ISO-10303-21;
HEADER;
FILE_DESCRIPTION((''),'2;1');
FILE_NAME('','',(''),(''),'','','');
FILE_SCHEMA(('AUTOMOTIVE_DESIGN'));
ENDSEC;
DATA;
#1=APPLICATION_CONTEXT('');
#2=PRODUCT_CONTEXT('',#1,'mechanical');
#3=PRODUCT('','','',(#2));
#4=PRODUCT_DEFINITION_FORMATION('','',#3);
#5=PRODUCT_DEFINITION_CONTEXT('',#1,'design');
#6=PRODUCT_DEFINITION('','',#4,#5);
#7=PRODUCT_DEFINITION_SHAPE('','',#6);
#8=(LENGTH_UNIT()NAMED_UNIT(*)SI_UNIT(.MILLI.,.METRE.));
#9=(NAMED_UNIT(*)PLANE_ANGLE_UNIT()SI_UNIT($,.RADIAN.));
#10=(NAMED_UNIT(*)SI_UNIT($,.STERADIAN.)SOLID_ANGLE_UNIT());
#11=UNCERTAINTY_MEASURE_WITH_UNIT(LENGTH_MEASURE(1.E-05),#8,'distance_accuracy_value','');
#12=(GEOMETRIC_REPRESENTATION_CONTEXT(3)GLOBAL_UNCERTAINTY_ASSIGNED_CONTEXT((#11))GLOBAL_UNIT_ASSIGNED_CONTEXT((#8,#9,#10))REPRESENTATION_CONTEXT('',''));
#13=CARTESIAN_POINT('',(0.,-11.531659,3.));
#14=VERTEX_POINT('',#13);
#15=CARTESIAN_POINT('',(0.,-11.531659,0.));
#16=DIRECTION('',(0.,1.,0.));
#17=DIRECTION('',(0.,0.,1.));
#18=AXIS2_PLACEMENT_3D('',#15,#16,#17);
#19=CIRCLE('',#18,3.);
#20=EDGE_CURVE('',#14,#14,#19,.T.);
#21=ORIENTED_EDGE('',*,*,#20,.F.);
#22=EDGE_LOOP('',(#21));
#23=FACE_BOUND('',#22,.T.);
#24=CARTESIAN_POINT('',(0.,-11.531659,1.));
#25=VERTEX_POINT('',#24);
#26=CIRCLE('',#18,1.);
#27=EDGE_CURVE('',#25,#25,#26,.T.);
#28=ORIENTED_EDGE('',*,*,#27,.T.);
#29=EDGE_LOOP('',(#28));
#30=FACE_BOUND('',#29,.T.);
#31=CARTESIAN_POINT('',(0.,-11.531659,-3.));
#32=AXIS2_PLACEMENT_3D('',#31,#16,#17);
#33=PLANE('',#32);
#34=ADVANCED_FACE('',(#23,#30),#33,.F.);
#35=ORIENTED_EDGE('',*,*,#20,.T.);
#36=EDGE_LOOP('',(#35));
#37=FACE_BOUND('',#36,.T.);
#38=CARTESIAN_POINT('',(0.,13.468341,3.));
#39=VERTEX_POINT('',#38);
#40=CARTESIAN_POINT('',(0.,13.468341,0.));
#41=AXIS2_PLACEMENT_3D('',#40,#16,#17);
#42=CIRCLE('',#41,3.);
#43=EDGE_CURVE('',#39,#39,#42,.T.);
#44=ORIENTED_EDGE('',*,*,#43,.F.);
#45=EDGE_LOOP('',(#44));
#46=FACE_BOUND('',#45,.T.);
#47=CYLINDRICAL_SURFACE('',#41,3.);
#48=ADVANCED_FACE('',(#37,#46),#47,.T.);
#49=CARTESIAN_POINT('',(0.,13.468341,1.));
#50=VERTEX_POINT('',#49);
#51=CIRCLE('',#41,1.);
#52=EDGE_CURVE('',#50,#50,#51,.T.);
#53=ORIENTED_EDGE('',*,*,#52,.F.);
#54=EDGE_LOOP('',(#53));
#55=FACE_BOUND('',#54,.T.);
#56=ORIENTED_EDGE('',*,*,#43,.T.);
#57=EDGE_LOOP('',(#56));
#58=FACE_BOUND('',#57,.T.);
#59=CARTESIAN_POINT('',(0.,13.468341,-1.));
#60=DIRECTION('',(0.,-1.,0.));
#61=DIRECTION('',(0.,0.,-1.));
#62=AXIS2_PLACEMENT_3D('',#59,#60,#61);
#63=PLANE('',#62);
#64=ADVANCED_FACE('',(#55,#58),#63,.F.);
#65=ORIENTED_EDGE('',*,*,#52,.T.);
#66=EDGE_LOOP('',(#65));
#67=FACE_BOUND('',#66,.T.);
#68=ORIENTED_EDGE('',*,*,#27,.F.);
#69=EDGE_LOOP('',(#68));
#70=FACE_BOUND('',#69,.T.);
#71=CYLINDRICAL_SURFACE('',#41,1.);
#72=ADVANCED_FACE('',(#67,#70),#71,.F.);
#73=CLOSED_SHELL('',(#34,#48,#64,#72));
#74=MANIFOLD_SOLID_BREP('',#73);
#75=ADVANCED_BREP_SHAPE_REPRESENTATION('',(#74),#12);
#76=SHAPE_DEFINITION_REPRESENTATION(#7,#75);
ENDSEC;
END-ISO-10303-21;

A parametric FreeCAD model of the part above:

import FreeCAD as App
import Part
import Sketcher
Q = App.Units.Quantity

doc = App.newDocument("Part")
body = doc.addObject("PartDesign::Body", "Body")

# Sketch on YZ plane
sketch1 = doc.addObject("Sketcher::SketchObject", "Sketch")
body.addObject(sketch1)
sketch1.AttachmentSupport = (doc.YZ_Plane, [""])
sketch1.MapMode = "FlatFace"
sketch1.addGeometry(Part.LineSegment(App.Vector(13.468341, -1, 0), App.Vector(-11.531659, -1, 0)), False)
sketch1.addGeometry(Part.LineSegment(App.Vector(-11.531659, -1, 0), App.Vector(-11.531659, -3, 0)), False)
sketch1.addGeometry(Part.LineSegment(App.Vector(-11.531659, -3, 0), App.Vector(13.468341, -3, 0)), False)
sketch1.addGeometry(Part.LineSegment(App.Vector(13.468341, -3, 0), App.Vector(13.468341, -1, 0)), False)
sketch1.addConstraint(Sketcher.Constraint("Coincident", 0, 2, 1, 1))
sketch1.addConstraint(Sketcher.Constraint("Coincident", 1, 2, 2, 1))
sketch1.addConstraint(Sketcher.Constraint("Coincident", 2, 2, 3, 1))
sketch1.addConstraint(Sketcher.Constraint("Coincident", 3, 2, 0, 1))
sketch1.addConstraint(Sketcher.Constraint("Horizontal", 0))
sketch1.addConstraint(Sketcher.Constraint("Vertical", 1))
sketch1.addConstraint(Sketcher.Constraint("Horizontal", 2))
sketch1.addConstraint(Sketcher.Constraint("Vertical", 3))
sketch1.addConstraint(Sketcher.Constraint("DistanceX", 0, 2, 0, 1, Q("25 mm")))
sketch1.addConstraint(Sketcher.Constraint("DistanceY", 1, 2, 1, 1, Q("2 mm")))
sketch1.addConstraint(Sketcher.Constraint("DistanceY", 0, 2, -1, 1, Q("1 mm")))
sketch1.addConstraint(Sketcher.Constraint("DistanceX", 0, 2, -1, 1, Q("11.531659 mm")))
revolution = doc.addObject("PartDesign::Revolution", "Revolution")
body.addObject(revolution)
revolution.Profile = sketch1
revolution.ReferenceAxis = (sketch1, ["H_Axis"])
revolution.Angle = 360

doc.recompute()
